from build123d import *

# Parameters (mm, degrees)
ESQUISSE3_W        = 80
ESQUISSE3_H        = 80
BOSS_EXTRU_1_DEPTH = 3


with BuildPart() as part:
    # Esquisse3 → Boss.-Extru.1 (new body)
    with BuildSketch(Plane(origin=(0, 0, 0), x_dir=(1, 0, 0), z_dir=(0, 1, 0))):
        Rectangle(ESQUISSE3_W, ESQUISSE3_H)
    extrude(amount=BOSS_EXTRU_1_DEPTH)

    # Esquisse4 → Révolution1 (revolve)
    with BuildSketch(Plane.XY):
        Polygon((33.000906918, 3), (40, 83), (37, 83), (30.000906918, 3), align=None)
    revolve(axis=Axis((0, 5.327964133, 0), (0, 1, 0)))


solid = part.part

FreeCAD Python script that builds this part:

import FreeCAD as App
import Part
import Sketcher
from FreeCAD import Vector
Q = App.Units.Quantity


def add_polygon(sketch, points):
    """Adds a closed chain of lines whose ends are joined by coincident constraints."""
    first, n = sketch.GeometryCount, len(points)
    for a, b in zip(points, points[1:] + points[:1]):
        sketch.addGeometry(Part.LineSegment(App.Vector(*a, 0), App.Vector(*b, 0)), False)
    for i in range(n):
        sketch.addConstraint(Sketcher.Constraint("Coincident", first + i, 2, first + (i + 1) % n, 1))

doc = App.newDocument("Part")
params = doc.addObject("Spreadsheet::Sheet", "Params")
for row, (alias, value) in enumerate([
    ("sketch1_width", "80 mm"),
    ("pad1_length", "3 mm"),
    ("sketch2_width", "3 mm"),
    ("revolution_angle", "360 deg"),
], start=1):
    params.set(f"A{row}", alias)
    params.set(f"B{row}", "=" + value)
    params.setAlias(f"B{row}", alias)

body = doc.addObject("PartDesign::Body", "Body")

# Sketch on XZ plane
sketch1 = doc.addObject("Sketcher::SketchObject", "Sketch")
body.addObject(sketch1)
sketch1.AttachmentSupport = (doc.XZ_Plane, [""])
sketch1.MapMode = "FlatFace"
add_polygon(sketch1, [(-40, -40), (-40, 40), (40, 40), (40, -40)])  # lines 0-3
sketch1.addConstraint(Sketcher.Constraint("Vertical", 0))
sketch1.addConstraint(Sketcher.Constraint("Horizontal", 1))
sketch1.addConstraint(Sketcher.Constraint("Vertical", 2))
sketch1.addConstraint(Sketcher.Constraint("Horizontal", 3))
sketch1.addConstraint(Sketcher.Constraint("Symmetric", 0, 2, 2, 2, -1, 1))
sketch1.addConstraint(Sketcher.Constraint("Equal", 3, 0))
sketch1.addConstraint(Sketcher.Constraint("DistanceX", 1, 1, 1, 2, 80.0))
sketch1.setExpression("Constraints[10]", "Params.sketch1_width")
pad1 = doc.addObject("PartDesign::Pad", "Pad")
body.addObject(pad1)
pad1.Profile = sketch1
pad1.setExpression("Length", "Params.pad1_length")
pad1.Reversed = True

# Sketch on XY plane
sketch2 = doc.addObject("Sketcher::SketchObject", "Sketch001")
body.addObject(sketch2)
sketch2.AttachmentSupport = (doc.XY_Plane, [""])
sketch2.MapMode = "FlatFace"
add_polygon(sketch2, [(33.000907, 3), (40, 83), (37, 83), (30.000907, 3)])  # lines 0-3
sketch2.addConstraint(Sketcher.Constraint("Horizontal", 1))
sketch2.addConstraint(Sketcher.Constraint("Horizontal", 3))
sketch2.addConstraint(Sketcher.Constraint("Parallel", 0, 2))
sketch2.addConstraint(Sketcher.Constraint("DistanceX", 1, 2, 1, 1, 3.0))
sketch2.addConstraint(Sketcher.Constraint("Angle", 0, Q("85 deg")))
sketch2.addConstraint(Sketcher.Constraint("DistanceX", -1, 1, 0, 2, 40.0))
sketch2.addConstraint(Sketcher.Constraint("DistanceY", -1, 1, 0, 2, 83.0))
sketch2.addConstraint(Sketcher.Constraint("DistanceY", -1, 1, 2, 2, 3.0))
sketch2.setExpression("Constraints[7]", "Params.sketch2_width")
revolution = doc.addObject("PartDesign::Revolution", "Revolution")
body.addObject(revolution)
revolution.Profile = sketch2
revolution.ReferenceAxis = (sketch2, ["V_Axis"])
revolution.setExpression("Angle", "Params.revolution_angle")

doc.recompute()
